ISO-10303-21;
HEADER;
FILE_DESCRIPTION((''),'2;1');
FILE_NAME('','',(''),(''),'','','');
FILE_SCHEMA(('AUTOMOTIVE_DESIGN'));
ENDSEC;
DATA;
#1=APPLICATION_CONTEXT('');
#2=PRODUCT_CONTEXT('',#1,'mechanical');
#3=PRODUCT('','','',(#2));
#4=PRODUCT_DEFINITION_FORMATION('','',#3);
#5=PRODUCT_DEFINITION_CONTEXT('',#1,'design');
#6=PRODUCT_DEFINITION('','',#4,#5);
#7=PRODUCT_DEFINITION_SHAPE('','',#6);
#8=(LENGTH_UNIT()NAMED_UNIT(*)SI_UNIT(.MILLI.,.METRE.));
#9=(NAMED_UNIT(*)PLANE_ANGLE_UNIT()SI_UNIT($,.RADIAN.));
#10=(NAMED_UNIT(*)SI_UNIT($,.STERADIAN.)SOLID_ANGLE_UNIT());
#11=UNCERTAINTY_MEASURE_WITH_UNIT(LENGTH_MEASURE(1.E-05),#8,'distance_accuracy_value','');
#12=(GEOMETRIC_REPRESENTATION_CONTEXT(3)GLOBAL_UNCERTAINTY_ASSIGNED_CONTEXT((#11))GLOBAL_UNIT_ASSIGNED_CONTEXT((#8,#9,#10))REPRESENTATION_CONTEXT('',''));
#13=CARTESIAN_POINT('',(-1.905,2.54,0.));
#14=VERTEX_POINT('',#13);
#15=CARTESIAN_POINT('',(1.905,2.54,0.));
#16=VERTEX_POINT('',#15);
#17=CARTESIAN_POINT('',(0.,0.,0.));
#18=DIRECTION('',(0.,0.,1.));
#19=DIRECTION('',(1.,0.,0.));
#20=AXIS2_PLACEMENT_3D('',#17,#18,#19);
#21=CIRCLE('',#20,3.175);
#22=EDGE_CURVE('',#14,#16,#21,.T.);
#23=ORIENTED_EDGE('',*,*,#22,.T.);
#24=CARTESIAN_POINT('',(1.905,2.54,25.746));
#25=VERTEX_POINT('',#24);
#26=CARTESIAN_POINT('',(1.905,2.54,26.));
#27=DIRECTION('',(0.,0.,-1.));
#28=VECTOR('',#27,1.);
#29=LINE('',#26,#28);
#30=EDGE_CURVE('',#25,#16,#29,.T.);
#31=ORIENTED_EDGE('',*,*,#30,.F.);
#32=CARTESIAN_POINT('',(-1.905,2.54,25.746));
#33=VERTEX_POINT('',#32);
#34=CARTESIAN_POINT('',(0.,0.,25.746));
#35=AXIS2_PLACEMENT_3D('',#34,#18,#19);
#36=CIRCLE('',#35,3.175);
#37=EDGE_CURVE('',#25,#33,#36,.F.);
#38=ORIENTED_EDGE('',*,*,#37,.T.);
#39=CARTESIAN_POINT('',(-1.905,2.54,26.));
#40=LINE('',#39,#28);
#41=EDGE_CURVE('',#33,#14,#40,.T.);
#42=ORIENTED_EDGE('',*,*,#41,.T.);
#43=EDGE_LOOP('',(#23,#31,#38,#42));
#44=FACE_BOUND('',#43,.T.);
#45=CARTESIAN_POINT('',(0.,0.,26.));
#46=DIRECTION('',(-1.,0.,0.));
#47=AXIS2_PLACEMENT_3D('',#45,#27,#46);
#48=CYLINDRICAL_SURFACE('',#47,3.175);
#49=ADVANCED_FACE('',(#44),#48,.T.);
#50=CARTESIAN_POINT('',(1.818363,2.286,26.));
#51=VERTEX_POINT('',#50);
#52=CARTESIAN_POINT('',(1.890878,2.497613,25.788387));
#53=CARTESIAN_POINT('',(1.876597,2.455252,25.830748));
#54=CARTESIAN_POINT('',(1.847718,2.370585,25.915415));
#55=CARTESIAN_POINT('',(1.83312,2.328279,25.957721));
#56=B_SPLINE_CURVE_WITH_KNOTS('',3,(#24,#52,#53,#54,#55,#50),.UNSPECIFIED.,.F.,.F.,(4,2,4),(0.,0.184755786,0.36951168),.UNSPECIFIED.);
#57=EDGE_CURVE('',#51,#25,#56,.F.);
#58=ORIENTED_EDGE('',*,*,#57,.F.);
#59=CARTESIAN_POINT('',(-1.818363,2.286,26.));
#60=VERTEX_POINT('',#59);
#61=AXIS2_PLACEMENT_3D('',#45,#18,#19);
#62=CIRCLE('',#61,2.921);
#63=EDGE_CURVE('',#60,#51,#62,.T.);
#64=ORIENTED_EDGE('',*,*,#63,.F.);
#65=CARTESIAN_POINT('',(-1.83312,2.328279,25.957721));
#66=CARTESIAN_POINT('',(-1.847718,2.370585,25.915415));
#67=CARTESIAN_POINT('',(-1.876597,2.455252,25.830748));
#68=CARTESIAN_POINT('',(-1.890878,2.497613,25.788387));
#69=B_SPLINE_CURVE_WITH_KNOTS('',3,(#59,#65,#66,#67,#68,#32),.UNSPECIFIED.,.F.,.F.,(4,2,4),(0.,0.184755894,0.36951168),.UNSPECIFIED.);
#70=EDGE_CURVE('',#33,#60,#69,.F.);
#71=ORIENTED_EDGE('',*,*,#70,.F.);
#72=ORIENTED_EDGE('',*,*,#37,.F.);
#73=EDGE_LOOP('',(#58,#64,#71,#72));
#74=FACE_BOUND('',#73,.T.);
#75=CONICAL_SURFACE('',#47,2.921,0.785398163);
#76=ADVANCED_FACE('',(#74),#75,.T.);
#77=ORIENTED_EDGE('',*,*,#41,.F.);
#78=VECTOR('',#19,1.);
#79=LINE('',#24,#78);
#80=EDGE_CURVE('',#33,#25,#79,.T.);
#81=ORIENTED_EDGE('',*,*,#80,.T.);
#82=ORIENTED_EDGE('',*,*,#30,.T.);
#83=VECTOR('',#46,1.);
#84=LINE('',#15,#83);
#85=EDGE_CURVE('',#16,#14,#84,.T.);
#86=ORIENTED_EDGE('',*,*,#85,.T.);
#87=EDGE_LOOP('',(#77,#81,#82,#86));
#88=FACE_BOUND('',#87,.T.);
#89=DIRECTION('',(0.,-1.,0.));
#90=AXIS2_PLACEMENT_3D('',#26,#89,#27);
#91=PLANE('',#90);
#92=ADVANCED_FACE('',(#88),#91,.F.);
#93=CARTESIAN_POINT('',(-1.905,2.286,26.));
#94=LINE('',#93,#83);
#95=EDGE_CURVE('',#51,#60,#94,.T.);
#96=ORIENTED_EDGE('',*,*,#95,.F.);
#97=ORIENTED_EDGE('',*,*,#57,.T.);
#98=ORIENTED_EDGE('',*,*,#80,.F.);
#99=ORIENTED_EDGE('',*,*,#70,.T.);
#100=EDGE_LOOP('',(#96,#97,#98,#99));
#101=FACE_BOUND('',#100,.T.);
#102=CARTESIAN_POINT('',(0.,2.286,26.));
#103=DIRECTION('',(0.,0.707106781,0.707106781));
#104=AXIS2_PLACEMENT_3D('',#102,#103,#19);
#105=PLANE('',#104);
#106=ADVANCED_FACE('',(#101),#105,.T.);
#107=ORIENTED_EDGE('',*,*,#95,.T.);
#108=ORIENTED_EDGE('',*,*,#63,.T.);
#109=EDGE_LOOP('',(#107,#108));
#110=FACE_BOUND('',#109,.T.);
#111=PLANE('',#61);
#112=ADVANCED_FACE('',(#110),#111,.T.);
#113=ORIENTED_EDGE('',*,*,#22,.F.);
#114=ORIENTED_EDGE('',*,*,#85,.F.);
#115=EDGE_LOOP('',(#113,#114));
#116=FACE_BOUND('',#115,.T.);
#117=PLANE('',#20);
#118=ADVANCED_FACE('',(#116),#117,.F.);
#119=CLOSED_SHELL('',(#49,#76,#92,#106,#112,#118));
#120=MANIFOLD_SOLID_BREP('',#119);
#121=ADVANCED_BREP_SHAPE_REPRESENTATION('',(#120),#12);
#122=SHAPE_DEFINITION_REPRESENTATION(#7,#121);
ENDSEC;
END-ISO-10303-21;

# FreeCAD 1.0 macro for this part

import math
import FreeCAD as App
import Part
import Sketcher
from FreeCAD import Vector
Q = App.Units.Quantity


def edges_at(feature, points):
    """Names of the edges that pass closest to the given points."""
    edges = feature.Shape.Edges
    near = lambda p: min(range(len(edges)), key=lambda i: edges[i].distToShape(Part.Vertex(*p))[0])
    return sorted({f"Edge{near(p) + 1}" for p in points})

doc = App.newDocument("Part")
params = doc.addObject("Spreadsheet::Sheet", "Params")
for row, (alias, value) in enumerate([
    ("sketch1_radius", "0.125 in"),
    ("sketch1_width", "0.15 in"),
    ("pad1_length", "26 mm"),
    ("chamfer_size", "0.01 in"),
], start=1):
    params.set(f"A{row}", alias)
    params.set(f"B{row}", "=" + value)
    params.setAlias(f"B{row}", alias)

body = doc.addObject("PartDesign::Body", "Body")

# Sketch on XY plane
sketch1 = body.newObject("Sketcher::SketchObject", "Sketch")
sketch1.AttachmentSupport = (doc.getObject("XY_Plane"), [""])
sketch1.MapMode = "FlatFace"
sketch1.addGeometry([
    Part.LineSegment(Vector(1.9, 2.5, 0), Vector(-1.9, 2.5, 0)),
    Part.ArcOfCircle(Part.Circle(Vector(0, 0, 0), Vector(0, 0, 1), 3.2), math.radians(127), math.radians(413)),
], False)
sketch1.addConstraint([
    Sketcher.Constraint("Coincident", 0, 1, 1, 2),
    Sketcher.Constraint("Coincident", 1, 1, 0, 2),
    Sketcher.Constraint("Horizontal", 0),
    Sketcher.Constraint("Coincident", 1, 3, -1, 1),
    Sketcher.Constraint("Radius", 1, Q("0.125 in")),
    Sketcher.Constraint("DistanceX", 0, 2, 0, 1, Q("0.15 in")),
])
sketch1.setExpression("Constraints[4]", "Params.sketch1_radius")
sketch1.setExpression("Constraints[5]", "Params.sketch1_width")
pad1 = body.newObject("PartDesign::Pad", "Pad")
pad1.Profile = sketch1
pad1.setExpression("Length", "Params.pad1_length")
doc.recompute()

chamfer = body.newObject("PartDesign::Chamfer", "Chamfer")
chamfer.Base = (pad1, edges_at(pad1, [(0, -3.175, 26), (0, 2.54, 26)]))
chamfer.setExpression("Size", "Params.chamfer_size")

doc.recompute()
